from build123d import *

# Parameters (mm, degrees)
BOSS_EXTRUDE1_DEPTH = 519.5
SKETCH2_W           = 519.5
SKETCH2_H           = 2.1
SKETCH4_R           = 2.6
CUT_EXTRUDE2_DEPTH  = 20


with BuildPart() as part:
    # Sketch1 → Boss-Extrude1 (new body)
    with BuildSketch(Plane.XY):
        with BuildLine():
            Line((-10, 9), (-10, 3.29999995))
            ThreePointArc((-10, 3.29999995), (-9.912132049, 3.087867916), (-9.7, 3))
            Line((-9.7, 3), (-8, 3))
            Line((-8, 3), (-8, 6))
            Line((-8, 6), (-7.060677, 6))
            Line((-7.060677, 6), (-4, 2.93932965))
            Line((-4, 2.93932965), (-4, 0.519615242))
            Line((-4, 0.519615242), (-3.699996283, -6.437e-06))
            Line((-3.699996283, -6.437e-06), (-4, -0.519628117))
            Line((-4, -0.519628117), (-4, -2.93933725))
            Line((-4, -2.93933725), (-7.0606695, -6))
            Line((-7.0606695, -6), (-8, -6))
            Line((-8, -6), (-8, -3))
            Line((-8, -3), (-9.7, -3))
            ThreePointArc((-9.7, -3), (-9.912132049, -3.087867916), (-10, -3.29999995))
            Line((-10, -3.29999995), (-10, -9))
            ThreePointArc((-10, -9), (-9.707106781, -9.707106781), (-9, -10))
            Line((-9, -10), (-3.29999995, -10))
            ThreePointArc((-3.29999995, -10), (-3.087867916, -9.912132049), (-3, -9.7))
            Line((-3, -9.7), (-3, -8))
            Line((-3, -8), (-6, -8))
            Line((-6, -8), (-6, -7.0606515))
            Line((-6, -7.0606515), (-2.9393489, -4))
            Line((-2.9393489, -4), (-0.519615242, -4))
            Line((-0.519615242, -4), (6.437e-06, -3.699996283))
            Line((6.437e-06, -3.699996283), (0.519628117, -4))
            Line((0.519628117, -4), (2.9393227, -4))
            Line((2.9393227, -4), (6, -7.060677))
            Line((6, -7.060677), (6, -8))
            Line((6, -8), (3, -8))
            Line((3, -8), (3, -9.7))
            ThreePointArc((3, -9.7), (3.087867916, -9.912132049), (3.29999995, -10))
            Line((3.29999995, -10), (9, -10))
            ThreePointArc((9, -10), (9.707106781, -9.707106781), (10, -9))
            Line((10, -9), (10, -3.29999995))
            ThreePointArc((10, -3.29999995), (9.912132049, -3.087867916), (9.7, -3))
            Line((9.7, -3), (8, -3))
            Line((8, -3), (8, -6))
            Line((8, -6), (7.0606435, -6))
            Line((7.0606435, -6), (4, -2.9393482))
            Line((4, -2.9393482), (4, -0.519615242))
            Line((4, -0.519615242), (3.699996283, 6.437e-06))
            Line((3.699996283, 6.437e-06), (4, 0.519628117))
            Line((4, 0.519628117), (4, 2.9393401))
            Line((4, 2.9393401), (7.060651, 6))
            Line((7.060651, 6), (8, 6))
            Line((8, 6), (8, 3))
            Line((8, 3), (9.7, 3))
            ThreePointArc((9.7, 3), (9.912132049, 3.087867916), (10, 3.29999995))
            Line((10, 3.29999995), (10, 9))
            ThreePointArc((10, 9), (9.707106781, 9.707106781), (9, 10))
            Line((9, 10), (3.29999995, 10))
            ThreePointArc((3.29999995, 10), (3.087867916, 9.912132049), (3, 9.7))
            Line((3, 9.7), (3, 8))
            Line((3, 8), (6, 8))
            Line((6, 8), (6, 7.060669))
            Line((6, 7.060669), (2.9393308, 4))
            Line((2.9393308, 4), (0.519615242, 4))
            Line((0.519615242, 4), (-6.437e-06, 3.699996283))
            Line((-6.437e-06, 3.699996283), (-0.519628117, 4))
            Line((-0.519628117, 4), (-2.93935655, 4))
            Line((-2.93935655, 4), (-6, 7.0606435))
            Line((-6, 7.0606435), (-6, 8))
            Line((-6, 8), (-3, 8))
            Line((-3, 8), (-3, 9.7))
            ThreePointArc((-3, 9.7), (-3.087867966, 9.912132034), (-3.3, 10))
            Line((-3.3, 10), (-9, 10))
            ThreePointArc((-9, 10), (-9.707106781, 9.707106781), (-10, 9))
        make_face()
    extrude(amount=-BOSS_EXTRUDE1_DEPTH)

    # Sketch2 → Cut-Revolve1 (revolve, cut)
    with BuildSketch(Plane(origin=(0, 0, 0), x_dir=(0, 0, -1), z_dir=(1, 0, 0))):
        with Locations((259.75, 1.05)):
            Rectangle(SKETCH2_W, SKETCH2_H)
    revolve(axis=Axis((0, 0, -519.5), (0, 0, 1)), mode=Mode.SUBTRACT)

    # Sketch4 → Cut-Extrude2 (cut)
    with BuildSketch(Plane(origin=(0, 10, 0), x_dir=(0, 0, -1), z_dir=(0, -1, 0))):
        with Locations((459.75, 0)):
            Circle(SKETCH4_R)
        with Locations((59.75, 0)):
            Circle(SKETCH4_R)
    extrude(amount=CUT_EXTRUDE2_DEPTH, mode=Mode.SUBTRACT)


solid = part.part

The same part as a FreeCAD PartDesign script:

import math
import FreeCAD as App
import Part
import Sketcher
from FreeCAD import Vector
Q = App.Units.Quantity


def add_polygon(sketch, points):
    """Adds a closed chain of lines whose ends are joined by coincident constraints."""
    first, n = sketch.GeometryCount, len(points)
    for a, b in zip(points, points[1:] + points[:1]):
        sketch.addGeometry(Part.LineSegment(App.Vector(*a, 0), App.Vector(*b, 0)), False)
    for i in range(n):
        sketch.addConstraint(Sketcher.Constraint("Coincident", first + i, 2, first + (i + 1) % n, 1))

doc = App.newDocument("Part")
body = doc.addObject("PartDesign::Body", "Body")

# Sketch on XY plane
sketch1 = body.newObject("Sketcher::SketchObject", "Sketch")
sketch1.AttachmentSupport = (doc.getObject("XY_Plane"), [""])
sketch1.MapMode = "FlatFace"
sketch1.addGeometry(Part.LineSegment(Vector(-10, 9, 0), Vector(-10, 3.3, 0)), False)
sketch1.addGeometry(Part.ArcOfCircle(Part.Circle(Vector(-9.7, 3.3, 0), Vector(0, 0, 1), 0.3), math.radians(180), math.radians(270)), False)
sketch1.addGeometry(Part.LineSegment(Vector(-9.7, 3, 0), Vector(-8, 3, 0)), False)
sketch1.addGeometry(Part.LineSegment(Vector(-8, 3, 0), Vector(-8, 6, 0)), False)
sketch1.addGeometry(Part.LineSegment(Vector(-8, 6, 0), Vector(-7.06, 6, 0)), False)
sketch1.addGeometry(Part.LineSegment(Vector(-7.06, 6, 0), Vector(-4, 2.94, 0)), False)
sketch1.addGeometry(Part.LineSegment(Vector(-4, 2.94, 0), Vector(-4, 0.52, 0)), False)
sketch1.addGeometry(Part.LineSegment(Vector(-4, 0.52, 0), Vector(-3.7, 0, 0)), False)
sketch1.addGeometry(Part.LineSegment(Vector(-3.7, 0, 0), Vector(-4, -0.52, 0)), False)
sketch1.addGeometry(Part.LineSegment(Vector(-4, -0.52, 0), Vector(-4, -2.94, 0)), False)
sketch1.addGeometry(Part.LineSegment(Vector(-4, -2.94, 0), Vector(-7.06, -6, 0)), False)
sketch1.addGeometry(Part.LineSegment(Vector(-7.06, -6, 0), Vector(-8, -6, 0)), False)
sketch1.addGeometry(Part.LineSegment(Vector(-8, -6, 0), Vector(-8, -3, 0)), False)
sketch1.addGeometry(Part.LineSegment(Vector(-8, -3, 0), Vector(-9.7, -3, 0)), False)
sketch1.addGeometry(Part.ArcOfCircle(Part.Circle(Vector(-9.7, -3.3, 0), Vector(0, 0, 1), 0.3), math.radians(90), math.radians(180)), False)
sketch1.addGeometry(Part.LineSegment(Vector(-10, -3.3, 0), Vector(-10, -9, 0)), False)
sketch1.addGeometry(Part.ArcOfCircle(Part.Circle(Vector(-9, -9, 0), Vector(0, 0, 1), 1), math.radians(-180), math.radians(-90)), False)
sketch1.addGeometry(Part.LineSegment(Vector(-9, -10, 0), Vector(-3.3, -10, 0)), False)
sketch1.addGeometry(Part.ArcOfCircle(Part.Circle(Vector(-3.3, -9.7, 0), Vector(0, 0, 1), 0.3), math.radians(-90), math.radians(0)), False)
sketch1.addGeometry(Part.LineSegment(Vector(-3, -9.7, 0), Vector(-3, -8, 0)), False)
sketch1.addGeometry(Part.LineSegment(Vector(-3, -8, 0), Vector(-6, -8, 0)), False)
sketch1.addGeometry(Part.LineSegment(Vector(-6, -8, 0), Vector(-6, -7.06, 0)), False)
sketch1.addGeometry(Part.LineSegment(Vector(-6, -7.06, 0), Vector(-2.94, -4, 0)), False)
sketch1.addGeometry(Part.LineSegment(Vector(-2.94, -4, 0), Vector(-0.52, -4, 0)), False)
sketch1.addGeometry(Part.LineSegment(Vector(-0.52, -4, 0), Vector(0, -3.7, 0)), False)
sketch1.addGeometry(Part.LineSegment(Vector(0, -3.7, 0), Vector(0.52, -4, 0)), False)
sketch1.addGeometry(Part.LineSegment(Vector(0.52, -4, 0), Vector(2.94, -4, 0)), False)
sketch1.addGeometry(Part.LineSegment(Vector(2.94, -4, 0), Vector(6, -7.06, 0)), False)
sketch1.addGeometry(Part.LineSegment(Vector(6, -7.06, 0), Vector(6, -8, 0)), False)
sketch1.addGeometry(Part.LineSegment(Vector(6, -8, 0), Vector(3, -8, 0)), False)
sketch1.addGeometry(Part.LineSegment(Vector(3, -8, 0), Vector(3, -9.7, 0)), False)
sketch1.addGeometry(Part.ArcOfCircle(Part.Circle(Vector(3.3, -9.7, 0), Vector(0, 0, 1), 0.3), math.radians(180), math.radians(270)), False)
sketch1.addGeometry(Part.LineSegment(Vector(3.3, -10, 0), Vector(9, -10, 0)), False)
sketch1.addGeometry(Part.ArcOfCircle(Part.Circle(Vector(9, -9, 0), Vector(0, 0, 1), 1), math.radians(-90), math.radians(0)), False)
sketch1.addGeometry(Part.LineSegment(Vector(10, -9, 0), Vector(10, -3.3, 0)), False)
sketch1.addGeometry(Part.ArcOfCircle(Part.Circle(Vector(9.7, -3.3, 0), Vector(0, 0, 1), 0.3), math.radians(0), math.radians(90)), False)
sketch1.addGeometry(Part.LineSegment(Vector(9.7, -3, 0), Vector(8, -3, 0)), False)
sketch1.addGeometry(Part.LineSegment(Vector(8, -3, 0), Vector(8, -6, 0)), False)
sketch1.addGeometry(Part.LineSegment(Vector(8, -6, 0), Vector(7.06, -6, 0)), False)
sketch1.addGeometry(Part.LineSegment(Vector(7.06, -6, 0), Vector(4, -2.94, 0)), False)
sketch1.addGeometry(Part.LineSegment(Vector(4, -2.94, 0), Vector(4, -0.52, 0)), False)
sketch1.addGeometry(Part.LineSegment(Vector(4, -0.52, 0), Vector(3.7, 0, 0)), False)
sketch1.addGeometry(Part.LineSegment(Vector(3.7, 0, 0), Vector(4, 0.52, 0)), False)
sketch1.addGeometry(Part.LineSegment(Vector(4, 0.52, 0), Vector(4, 2.94, 0)), False)
sketch1.addGeometry(Part.LineSegment(Vector(4, 2.94, 0), Vector(7.06, 6, 0)), False)
sketch1.addGeometry(Part.LineSegment(Vector(7.06, 6, 0), Vector(8, 6, 0)), False)
sketch1.addGeometry(Part.LineSegment(Vector(8, 6, 0), Vector(8, 3, 0)), False)
sketch1.addGeometry(Part.LineSegment(Vector(8, 3, 0), Vector(9.7, 3, 0)), False)
sketch1.addGeometry(Part.ArcOfCircle(Part.Circle(Vector(9.7, 3.3, 0), Vector(0, 0, 1), 0.3), math.radians(-90), math.radians(0)), False)
sketch1.addGeometry(Part.LineSegment(Vector(10, 3.3, 0), Vector(10, 9, 0)), False)
sketch1.addGeometry(Part.ArcOfCircle(Part.Circle(Vector(9, 9, 0), Vector(0, 0, 1), 1), math.radians(0), math.radians(90)), False)
sketch1.addGeometry(Part.LineSegment(Vector(9, 10, 0), Vector(3.3, 10, 0)), False)
sketch1.addGeometry(Part.ArcOfCircle(Part.Circle(Vector(3.3, 9.7, 0), Vector(0, 0, 1), 0.3), math.radians(90), math.radians(180)), False)
sketch1.addGeometry(Part.LineSegment(Vector(3, 9.7, 0), Vector(3, 8, 0)), False)
sketch1.addGeometry(Part.LineSegment(Vector(3, 8, 0), Vector(6, 8, 0)), False)
sketch1.addGeometry(Part.LineSegment(Vector(6, 8, 0), Vector(6, 7.06, 0)), False)
sketch1.addGeometry(Part.LineSegment(Vector(6, 7.06, 0), Vector(2.94, 4, 0)), False)
sketch1.addGeometry(Part.LineSegment(Vector(2.94, 4, 0), Vector(0.52, 4, 0)), False)
sketch1.addGeometry(Part.LineSegment(Vector(0.52, 4, 0), Vector(0, 3.7, 0)), False)
sketch1.addGeometry(Part.LineSegment(Vector(0, 3.7, 0), Vector(-0.52, 4, 0)), False)
sketch1.addGeometry(Part.LineSegment(Vector(-0.52, 4, 0), Vector(-2.94, 4, 0)), False)
sketch1.addGeometry(Part.LineSegment(Vector(-2.94, 4, 0), Vector(-6, 7.06, 0)), False)
sketch1.addGeometry(Part.LineSegment(Vector(-6, 7.06, 0), Vector(-6, 8, 0)), False)
sketch1.addGeometry(Part.LineSegment(Vector(-6, 8, 0), Vector(-3, 8, 0)), False)
sketch1.addGeometry(Part.LineSegment(Vector(-3, 8, 0), Vector(-3, 9.7, 0)), False)
sketch1.addGeometry(Part.ArcOfCircle(Part.Circle(Vector(-3.3, 9.7, 0), Vector(0, 0, 1), 0.3), math.radians(0), math.radians(90)), False)
sketch1.addGeometry(Part.LineSegment(Vector(-3.3, 10, 0), Vector(-9, 10, 0)), False)
sketch1.addGeometry(Part.ArcOfCircle(Part.Circle(Vector(-9, 9, 0), Vector(0, 0, 1), 1), math.radians(90), math.radians(180)), False)
sketch1.addConstraint(Sketcher.Constraint("Tangent", 0, 2, 1, 1))
sketch1.addConstraint(Sketcher.Constraint("Tangent", 1, 2, 2, 1))
sketch1.addConstraint(Sketcher.Constraint("Coincident", 2, 2, 3, 1))
sketch1.addConstraint(Sketcher.Constraint("Coincident", 3, 2, 4, 1))
sketch1.addConstraint(Sketcher.Constraint("Coincident", 4, 2, 5, 1))
sketch1.addConstraint(Sketcher.Constraint("Coincident", 5, 2, 6, 1))
sketch1.addConstraint(Sketcher.Constraint("Coincident", 6, 2, 7, 1))
sketch1.addConstraint(Sketcher.Constraint("Coincident", 7, 2, 8, 1))
sketch1.addConstraint(Sketcher.Constraint("Coincident", 8, 2, 9, 1))
sketch1.addConstraint(Sketcher.Constraint("Coincident", 9, 2, 10, 1))
sketch1.addConstraint(Sketcher.Constraint("Coincident", 10, 2, 11, 1))
sketch1.addConstraint(Sketcher.Constraint("Coincident", 11, 2, 12, 1))
sketch1.addConstraint(Sketcher.Constraint("Coincident", 12, 2, 13, 1))
sketch1.addConstraint(Sketcher.Constraint("Tangent", 13, 2, 14, 1))
sketch1.addConstraint(Sketcher.Constraint("Tangent", 14, 2, 15, 1))
sketch1.addConstraint(Sketcher.Constraint("Tangent", 15, 2, 16, 1))
sketch1.addConstraint(Sketcher.Constraint("Tangent", 16, 2, 17, 1))
sketch1.addConstraint(Sketcher.Constraint("Tangent", 17, 2, 18, 1))
sketch1.addConstraint(Sketcher.Constraint("Tangent", 18, 2, 19, 1))
sketch1.addConstraint(Sketcher.Constraint("Coincident", 19, 2, 20, 1))
sketch1.addConstraint(Sketcher.Constraint("Coincident", 20, 2, 21, 1))
sketch1.addConstraint(Sketcher.Constraint("Coincident", 21, 2, 22, 1))
sketch1.addConstraint(Sketcher.Constraint("Coincident", 22, 2, 23, 1))
sketch1.addConstraint(Sketcher.Constraint("Coincident", 23, 2, 24, 1))
sketch1.addConstraint(Sketcher.Constraint("Coincident", 24, 2, 25, 1))
sketch1.addConstraint(Sketcher.Constraint("Coincident", 25, 2, 26, 1))
sketch1.addConstraint(Sketcher.Constraint("Coincident", 26, 2, 27, 1))
sketch1.addConstraint(Sketcher.Constraint("Coincident", 27, 2, 28, 1))
sketch1.addConstraint(Sketcher.Constraint("Coincident", 28, 2, 29, 1))
sketch1.addConstraint(Sketcher.Constraint("Coincident", 29, 2, 30, 1))
sketch1.addConstraint(Sketcher.Constraint("Tangent", 30, 2, 31, 1))
sketch1.addConstraint(Sketcher.Constraint("Tangent", 31, 2, 32, 1))
sketch1.addConstraint(Sketcher.Constraint("Tangent", 32, 2, 33, 1))
sketch1.addConstraint(Sketcher.Constraint("Tangent", 33, 2, 34, 1))
sketch1.addConstraint(Sketcher.Constraint("Tangent", 34, 2, 35, 1))
sketch1.addConstraint(Sketcher.Constraint("Tangent", 35, 2, 36, 1))
sketch1.addConstraint(Sketcher.Constraint("Coincident", 36, 2, 37, 1))
sketch1.addConstraint(Sketcher.Constraint("Coincident", 37, 2, 38, 1))
sketch1.addConstraint(Sketcher.Constraint("Coincident", 38, 2, 39, 1))
sketch1.addConstraint(Sketcher.Constraint("Coincident", 39, 2, 40, 1))
sketch1.addConstraint(Sketcher.Constraint("Coincident", 40, 2, 41, 1))
sketch1.addConstraint(Sketcher.Constraint("Coincident", 41, 2, 42, 1))
sketch1.addConstraint(Sketcher.Constraint("Coincident", 42, 2, 43, 1))
sketch1.addConstraint(Sketcher.Constraint("Coincident", 43, 2, 44, 1))
sketch1.addConstraint(Sketcher.Constraint("Coincident", 44, 2, 45, 1))
sketch1.addConstraint(Sketcher.Constraint("Coincident", 45, 2, 46, 1))
sketch1.addConstraint(Sketcher.Constraint("Coincident", 46, 2, 47, 1))
sketch1.addConstraint(Sketcher.Constraint("Tangent", 47, 2, 48, 1))
sketch1.addConstraint(Sketcher.Constraint("Tangent", 48, 2, 49, 1))
sketch1.addConstraint(Sketcher.Constraint("Tangent", 49, 2, 50, 1))
sketch1.addConstraint(Sketcher.Constraint("Tangent", 50, 2, 51, 1))
sketch1.addConstraint(Sketcher.Constraint("Tangent", 51, 2, 52, 1))
sketch1.addConstraint(Sketcher.Constraint("Tangent", 52, 2, 53, 1))
sketch1.addConstraint(Sketcher.Constraint("Coincident", 53, 2, 54, 1))
sketch1.addConstraint(Sketcher.Constraint("Coincident", 54, 2, 55, 1))
sketch1.addConstraint(Sketcher.Constraint("Coincident", 55, 2, 56, 1))
sketch1.addConstraint(Sketcher.Constraint("Coincident", 56, 2, 57, 1))
sketch1.addConstraint(Sketcher.Constraint("Coincident", 57, 2, 58, 1))
sketch1.addConstraint(Sketcher.Constraint("Coincident", 58, 2, 59, 1))
sketch1.addConstraint(Sketcher.Constraint("Coincident", 59, 2, 60, 1))
sketch1.addConstraint(Sketcher.Constraint("Coincident", 60, 2, 61, 1))
sketch1.addConstraint(Sketcher.Constraint("Coincident", 61, 2, 62, 1))
sketch1.addConstraint(Sketcher.Constraint("Coincident", 62, 2, 63, 1))
sketch1.addConstraint(Sketcher.Constraint("Coincident", 63, 2, 64, 1))
sketch1.addConstraint(Sketcher.Constraint("Tangent", 64, 2, 65, 1))
sketch1.addConstraint(Sketcher.Constraint("Tangent", 65, 2, 66, 1))
sketch1.addConstraint(Sketcher.Constraint("Tangent", 66, 2, 67, 1))
sketch1.addConstraint(Sketcher.Constraint("Tangent", 67, 2, 0, 1))
sketch1.addConstraint(Sketcher.Constraint("Vertical", 0))
sketch1.addConstraint(Sketcher.Constraint("Horizontal", 2))
sketch1.addConstraint(Sketcher.Constraint("Vertical", 3))
sketch1.addConstraint(Sketcher.Constraint("Horizontal", 4))
sketch1.addConstraint(Sketcher.Constraint("Vertical", 6))
sketch1.addConstraint(Sketcher.Constraint("Vertical", 9))
sketch1.addConstraint(Sketcher.Constraint("Horizontal", 11))
sketch1.addConstraint(Sketcher.Constraint("Vertical", 12))
sketch1.addConstraint(Sketcher.Constraint("Horizontal", 13))
sketch1.addConstraint(Sketcher.Constraint("Vertical", 15))
sketch1.addConstraint(Sketcher.Constraint("Horizontal", 17))
sketch1.addConstraint(Sketcher.Constraint("Vertical", 19))
sketch1.addConstraint(Sketcher.Constraint("Horizontal", 20))
sketch1.addConstraint(Sketcher.Constraint("Vertical", 21))
sketch1.addConstraint(Sketcher.Constraint("Horizontal", 23))
sketch1.addConstraint(Sketcher.Constraint("Horizontal", 26))
sketch1.addConstraint(Sketcher.Constraint("Vertical", 28))
sketch1.addConstraint(Sketcher.Constraint("Horizontal", 29))
sketch1.addConstraint(Sketcher.Constraint("Vertical", 30))
sketch1.addConstraint(Sketcher.Constraint("Horizontal", 32))
sketch1.addConstraint(Sketcher.Constraint("Vertical", 34))
sketch1.addConstraint(Sketcher.Constraint("Horizontal", 36))
sketch1.addConstraint(Sketcher.Constraint("Vertical", 37))
sketch1.addConstraint(Sketcher.Constraint("Horizontal", 38))
sketch1.addConstraint(Sketcher.Constraint("Vertical", 40))
sketch1.addConstraint(Sketcher.Constraint("Vertical", 43))
sketch1.addConstraint(Sketcher.Constraint("Horizontal", 45))
sketch1.addConstraint(Sketcher.Constraint("Vertical", 46))
sketch1.addConstraint(Sketcher.Constraint("Horizontal", 47))
sketch1.addConstraint(Sketcher.Constraint("Vertical", 49))
sketch1.addConstraint(Sketcher.Constraint("Horizontal", 51))
sketch1.addConstraint(Sketcher.Constraint("Vertical", 53))
sketch1.addConstraint(Sketcher.Constraint("Horizontal", 54))
sketch1.addConstraint(Sketcher.Constraint("Vertical", 55))
sketch1.addConstraint(Sketcher.Constraint("Horizontal", 57))
sketch1.addConstraint(Sketcher.Constraint("Horizontal", 60))
sketch1.addConstraint(Sketcher.Constraint("Vertical", 62))
sketch1.addConstraint(Sketcher.Constraint("Horizontal", 63))
sketch1.addConstraint(Sketcher.Constraint("Vertical", 64))
sketch1.addConstraint(Sketcher.Constraint("Horizontal", 66))
sketch1.addConstraint(Sketcher.Constraint("Equal", 1, 14))
sketch1.addConstraint(Sketcher.Constraint("Equal", 14, 18))
sketch1.addConstraint(Sketcher.Constraint("Equal", 18, 31))
sketch1.addConstraint(Sketcher.Constraint("Equal", 16, 33))
sketch1.addConstraint(Sketcher.Constraint("Equal", 31, 35))
sketch1.addConstraint(Sketcher.Constraint("Equal", 35, 48))
sketch1.addConstraint(Sketcher.Constraint("Equal", 33, 50))
sketch1.addConstraint(Sketcher.Constraint("Equal", 48, 52))
sketch1.addConstraint(Sketcher.Constraint("Equal", 52, 65))
sketch1.addConstraint(Sketcher.Constraint("Equal", 50, 67))
sketch1.addConstraint(Sketcher.Constraint("Symmetric", 1, 3, 35, 3, -1, 1))
sketch1.addConstraint(Sketcher.Constraint("Symmetric", 14, 3, 48, 3, -1, 1))
sketch1.addConstraint(Sketcher.Constraint("Symmetric", 18, 3, 52, 3, -1, 1))
sketch1.addConstraint(Sketcher.Constraint("Symmetric", 31, 3, 65, 3, -1, 1))
sketch1.addConstraint(Sketcher.Constraint("Symmetric", 3, 2, 37, 2, -1, 1))
sketch1.addConstraint(Sketcher.Constraint("Symmetric", 6, 2, 40, 2, -1, 1))
sketch1.addConstraint(Sketcher.Constraint("Symmetric", 7, 2, 41, 2, -1, 1))
sketch1.addConstraint(Sketcher.Constraint("Symmetric", 8, 2, 42, 2, -1, 1))
sketch1.addConstraint(Sketcher.Constraint("Symmetric", 11, 2, 45, 2, -1, 1))
sketch1.addConstraint(Sketcher.Constraint("Symmetric", 20, 2, 54, 2, -1, 1))
sketch1.addConstraint(Sketcher.Constraint("Symmetric", 23, 2, 57, 2, -1, 1))
sketch1.addConstraint(Sketcher.Constraint("Symmetric", 24, 2, 58, 2, -1, 1))
sketch1.addConstraint(Sketcher.Constraint("Symmetric", 25, 2, 59, 2, -1, 1))
sketch1.addConstraint(Sketcher.Constraint("Symmetric", 28, 2, 62, 2, -1, 1))
sketch1.addConstraint(Sketcher.Constraint("Symmetric", 18, 3, 31, 3, -2))
sketch1.addConstraint(Sketcher.Constraint("Symmetric", 14, 3, 35, 3, -2))
sketch1.addConstraint(Sketcher.Constraint("Symmetric", 20, 2, 28, 2, -2))
sketch1.addConstraint(Sketcher.Constraint("Symmetric", 11, 2, 37, 2, -2))
sketch1.addConstraint(Sketcher.Constraint("Symmetric", 5, 2, 9, 2, -1))
sketch1.addConstraint(Sketcher.Constraint("Symmetric", 26, 2, 56, 2, -1))
sketch1.addConstraint(Sketcher.Constraint("Parallel", 10, 22))
sketch1.addConstraint(Sketcher.Constraint("Perpendicular", 7, 24))
sketch1.addConstraint(Sketcher.Constraint("Perpendicular", 8, 25))
sketch1.addConstraint(Sketcher.Constraint("Perpendicular", 22, 27))
sketch1.addConstraint(Sketcher.Constraint("Parallel", 27, 39))
sketch1.addConstraint(Sketcher.Constraint("Perpendicular", 27, 44))
sketch1.addConstraint(Sketcher.Constraint("Parallel", 44, 56))
sketch1.addConstraint(Sketcher.Constraint("Perpendicular", 56, 61))
sketch1.addConstraint(Sketcher.Constraint("Equal", 66, 0))
sketch1.addConstraint(Sketcher.Constraint("Equal", 63, 3))
sketch1.addConstraint(Sketcher.Constraint("Equal", 57, 6))
sketch1.addConstraint(Sketcher.Constraint("Equal", 47, 19))
sketch1.addConstraint(Sketcher.Constraint("Equal", 45, 21))
sketch1.addConstraint(Sketcher.Constraint("Equal", 4, 28))
sketch1.addConstraint(Sketcher.Constraint("Equal", 23, 40))
sketch1.addConstraint(Sketcher.Constraint("Equal", 11, 55))
sketch1.addConstraint(Sketcher.Constraint("Equal", 38, 62))
sketch1.addConstraint(Sketcher.Constraint("Equal", 7, 8))
sketch1.addConstraint(Sketcher.Constraint("Equal", 8, 24))
sketch1.addConstraint(Sketcher.Constraint("Radius", 16, Q("1 mm")))
sketch1.addConstraint(Sketcher.Constraint("Radius", 1, Q("0.3 mm")))
sketch1.addConstraint(Sketcher.Constraint("DistanceX", 20, 2, 20, 1, Q("3 mm")))
sketch1.addConstraint(Sketcher.Constraint("Angle", 7, Q("-60 deg")))
sketch1.addConstraint(Sketcher.Constraint("Angle", 22, Q("45.000004 deg")))
sketch1.addConstraint(Sketcher.Constraint("DistanceX", 2, 1, 2, 2, Q("1.7 mm")))
sketch1.addConstraint(Sketcher.Constraint("DistanceX", 17, 1, 17, 2, Q("5.7 mm")))
sketch1.addConstraint(Sketcher.Constraint("DistanceX", 16, 3, -1, 1, Q("9 mm")))
sketch1.addConstraint(Sketcher.Constraint("DistanceY", 16, 3, -1, 1, Q("9 mm")))
sketch1.addConstraint(Sketcher.Constraint("DistanceX", 5, 2, -1, 1, Q("4 mm")))
sketch1.addConstraint(Sketcher.Constraint("DistanceY", 22, 2, -1, 1, Q("4 mm")))
sketch1.addConstraint(Sketcher.Constraint("DistanceX", 11, 2, 11, 1, Q("0.93933 mm")))
sketch1.addConstraint(Sketcher.Constraint("DistanceX", 45, 1, 45, 2, Q("0.939349 mm")))
sketch1.addConstraint(Sketcher.Constraint("DistanceX", 60, 2, 60, 1, Q("2.419728 mm")))
sketch1.addConstraint(Sketcher.Constraint("DistanceX", 23, 1, 23, 2, Q("2.419734 mm")))
pad1 = body.newObject("PartDesign::Pad", "Pad")
pad1.Profile = sketch1
pad1.Length = 519.5
pad1.Reversed = True

# Sketch on YZ plane
sketch2 = body.newObject("Sketcher::SketchObject", "Sketch001")
sketch2.AttachmentSupport = (doc.getObject("YZ_Plane"), [""])
sketch2.MapMode = "FlatFace"
add_polygon(sketch2, [(2.1, 0), (0, 0), (0, -519.5), (2.1, -519.5)])  # lines 0-3
sketch2.addConstraint(Sketcher.Constraint("Horizontal", 0))
sketch2.addConstraint(Sketcher.Constraint("Vertical", 1))
sketch2.addConstraint(Sketcher.Constraint("Horizontal", 2))
sketch2.addConstraint(Sketcher.Constraint("Vertical", 3))
sketch2.addConstraint(Sketcher.Constraint("Coincident", 0, 2, -1, 1))
sketch2.addConstraint(Sketcher.Constraint("DistanceX", 0, 2, 0, 1, Q("2.1 mm")))
sketch2.addConstraint(Sketcher.Constraint("DistanceY", 1, 2, 1, 1, Q("519.5 mm")))
groove = body.newObject("PartDesign::Groove", "Groove")
groove.Profile = sketch2
groove.ReferenceAxis = (sketch2, ["V_Axis"])
groove.Angle = 360

# Sketch on XZ plane
sketch3 = body.newObject("Sketcher::SketchObject", "Sketch002")
sketch3.AttachmentSupport = (doc.getObject("XZ_Plane"), [""])
sketch3.MapMode = "FlatFace"
sketch3.AttachmentOffset = App.Placement(Vector(0, 0, -10), App.Rotation())
sketch3.addGeometry(Part.Circle(Vector(0, -459.8, 0), Vector(0, 0, 1), 2.6), False)
sketch3.addGeometry(Part.Circle(Vector(0, -59.8, 0), Vector(0, 0, 1), 2.6), False)
sketch3.addConstraint(Sketcher.Constraint("Equal", 0, 1))
sketch3.addConstraint(Sketcher.Constraint("PointOnObject", 0, 3, -2))
sketch3.addConstraint(Sketcher.Constraint("PointOnObject", 1, 3, -2))
sketch3.addConstraint(Sketcher.Constraint("Diameter", 0, Q("5.2 mm")))
sketch3.addConstraint(Sketcher.Constraint("DistanceY", 0, 3, 1, 3, Q("400 mm")))
sketch3.addConstraint(Sketcher.Constraint("DistanceY", 0, 3, -1, 1, Q("459.75 mm")))
pocket1 = body.newObject("PartDesign::Pocket", "Pocket")
pocket1.Profile = sketch3
pocket1.Length = 20
pocket1.Reversed = True

doc.recompute()
